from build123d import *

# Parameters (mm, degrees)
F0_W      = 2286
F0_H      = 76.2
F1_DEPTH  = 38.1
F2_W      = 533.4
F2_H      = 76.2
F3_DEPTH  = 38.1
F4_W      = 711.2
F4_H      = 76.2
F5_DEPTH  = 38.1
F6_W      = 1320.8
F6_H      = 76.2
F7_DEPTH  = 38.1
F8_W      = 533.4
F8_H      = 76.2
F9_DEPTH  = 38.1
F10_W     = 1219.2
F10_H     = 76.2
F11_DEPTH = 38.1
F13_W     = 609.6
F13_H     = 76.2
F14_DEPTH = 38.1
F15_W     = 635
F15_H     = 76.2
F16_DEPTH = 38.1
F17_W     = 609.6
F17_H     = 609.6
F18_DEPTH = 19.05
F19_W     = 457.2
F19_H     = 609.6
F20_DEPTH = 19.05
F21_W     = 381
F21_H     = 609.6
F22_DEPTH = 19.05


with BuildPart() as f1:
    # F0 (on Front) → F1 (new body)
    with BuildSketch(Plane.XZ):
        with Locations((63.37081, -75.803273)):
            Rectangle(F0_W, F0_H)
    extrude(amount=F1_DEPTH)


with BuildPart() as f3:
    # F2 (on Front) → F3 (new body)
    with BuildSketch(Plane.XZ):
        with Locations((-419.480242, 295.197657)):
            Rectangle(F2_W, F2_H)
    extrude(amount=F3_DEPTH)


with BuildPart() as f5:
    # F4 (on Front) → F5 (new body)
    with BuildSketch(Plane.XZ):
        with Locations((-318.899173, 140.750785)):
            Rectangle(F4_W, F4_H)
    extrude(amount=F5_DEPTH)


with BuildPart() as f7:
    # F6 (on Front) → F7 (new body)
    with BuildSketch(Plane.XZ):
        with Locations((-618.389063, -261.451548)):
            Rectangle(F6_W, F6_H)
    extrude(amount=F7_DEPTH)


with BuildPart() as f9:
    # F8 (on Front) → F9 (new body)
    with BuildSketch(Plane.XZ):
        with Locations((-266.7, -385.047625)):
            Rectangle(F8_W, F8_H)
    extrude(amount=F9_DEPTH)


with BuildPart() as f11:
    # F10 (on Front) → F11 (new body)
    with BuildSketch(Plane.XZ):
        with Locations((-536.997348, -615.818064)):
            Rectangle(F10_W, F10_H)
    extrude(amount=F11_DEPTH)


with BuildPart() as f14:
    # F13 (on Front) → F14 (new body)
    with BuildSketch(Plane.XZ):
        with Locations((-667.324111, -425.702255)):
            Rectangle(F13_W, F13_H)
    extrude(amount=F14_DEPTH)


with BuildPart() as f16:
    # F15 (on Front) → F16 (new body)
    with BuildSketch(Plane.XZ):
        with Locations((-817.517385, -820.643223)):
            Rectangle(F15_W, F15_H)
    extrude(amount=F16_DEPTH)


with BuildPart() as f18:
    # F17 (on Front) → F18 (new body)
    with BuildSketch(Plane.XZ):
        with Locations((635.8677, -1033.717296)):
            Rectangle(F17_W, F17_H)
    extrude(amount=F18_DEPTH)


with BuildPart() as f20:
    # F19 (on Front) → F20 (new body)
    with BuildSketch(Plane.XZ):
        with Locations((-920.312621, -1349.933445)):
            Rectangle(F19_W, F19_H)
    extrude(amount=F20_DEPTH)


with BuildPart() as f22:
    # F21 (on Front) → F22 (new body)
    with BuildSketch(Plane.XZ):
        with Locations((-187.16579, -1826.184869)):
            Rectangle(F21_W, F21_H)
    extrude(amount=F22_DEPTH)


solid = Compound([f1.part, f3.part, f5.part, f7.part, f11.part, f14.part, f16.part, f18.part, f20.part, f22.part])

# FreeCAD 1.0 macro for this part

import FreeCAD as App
import Part
import Sketcher
Q = App.Units.Quantity

doc = App.newDocument("Part")
body = doc.addObject("PartDesign::Body", "Body")

# Sketch on XZ plane
sketch1 = doc.addObject("Sketcher::SketchObject", "Sketch")
body.addObject(sketch1)
sketch1.AttachmentSupport = (doc.XZ_Plane, [""])
sketch1.MapMode = "FlatFace"
sketch1.addGeometry([
    Part.LineSegment(App.Vector(-1080, -38, 0), App.Vector(-1080, -114, 0)),
    Part.LineSegment(App.Vector(-1080, -114, 0), App.Vector(1206, -114, 0)),
    Part.LineSegment(App.Vector(1206, -114, 0), App.Vector(1206, -38, 0)),
    Part.LineSegment(App.Vector(1206, -38, 0), App.Vector(-1080, -38, 0)),
], False)
sketch1.addConstraint([
    Sketcher.Constraint("Coincident", 0, 2, 1, 1),
    Sketcher.Constraint("Coincident", 1, 2, 2, 1),
    Sketcher.Constraint("Coincident", 2, 2, 3, 1),
    Sketcher.Constraint("Coincident", 3, 2, 0, 1),
    Sketcher.Constraint("Vertical", 0),
    Sketcher.Constraint("Horizontal", 1),
    Sketcher.Constraint("Vertical", 2),
    Sketcher.Constraint("Horizontal", 3),
    Sketcher.Constraint("DistanceX", 1, 1, 1, 2, Q("90 in")),
    Sketcher.Constraint("DistanceY", 0, 2, 0, 1, Q("3 in")),
    Sketcher.Constraint("DistanceX", 0, 2, -1, 1, 1079.62919),
    Sketcher.Constraint("DistanceY", 0, 2, -1, 1, 113.903273),
])
pad1 = doc.addObject("PartDesign::Pad", "Pad")
body.addObject(pad1)
pad1.Profile = sketch1
pad1.Length = Q("1.5 in")
body2 = doc.addObject("PartDesign::Body", "Body001")

# Sketch on XZ plane
sketch2 = doc.addObject("Sketcher::SketchObject", "Sketch001")
body2.addObject(sketch2)
sketch2.AttachmentSupport = (doc.getObject("XZ_Plane001"), [""])
sketch2.MapMode = "FlatFace"
sketch2.addGeometry([
    Part.LineSegment(App.Vector(-686, 333, 0), App.Vector(-686, 257, 0)),
    Part.LineSegment(App.Vector(-686, 257, 0), App.Vector(-153, 257, 0)),
    Part.LineSegment(App.Vector(-153, 257, 0), App.Vector(-153, 333, 0)),
    Part.LineSegment(App.Vector(-153, 333, 0), App.Vector(-686, 333, 0)),
], False)
sketch2.addConstraint([
    Sketcher.Constraint("Coincident", 0, 2, 1, 1),
    Sketcher.Constraint("Coincident", 1, 2, 2, 1),
    Sketcher.Constraint("Coincident", 2, 2, 3, 1),
    Sketcher.Constraint("Coincident", 3, 2, 0, 1),
    Sketcher.Constraint("Vertical", 0),
    Sketcher.Constraint("Horizontal", 1),
    Sketcher.Constraint("Vertical", 2),
    Sketcher.Constraint("Horizontal", 3),
    Sketcher.Constraint("DistanceX", 1, 1, 1, 2, Q("21 in")),
    Sketcher.Constraint("DistanceY", 0, 2, 0, 1, Q("3 in")),
    Sketcher.Constraint("DistanceX", 0, 2, -1, 1, 686.180242),
    Sketcher.Constraint("DistanceY", -1, 1, 0, 2, 257.097657),
])
pad2 = doc.addObject("PartDesign::Pad", "Pad001")
body2.addObject(pad2)
pad2.Profile = sketch2
pad2.Length = Q("1.5 in")
body3 = doc.addObject("PartDesign::Body", "Body002")

# Sketch on XZ plane
sketch3 = doc.addObject("Sketcher::SketchObject", "Sketch002")
body3.addObject(sketch3)
sketch3.AttachmentSupport = (doc.getObject("XZ_Plane002"), [""])
sketch3.MapMode = "FlatFace"
sketch3.addGeometry([
    Part.LineSegment(App.Vector(-674, 179, 0), App.Vector(-674, 103, 0)),
    Part.LineSegment(App.Vector(-674, 103, 0), App.Vector(37, 103, 0)),
    Part.LineSegment(App.Vector(37, 103, 0), App.Vector(37, 179, 0)),
    Part.LineSegment(App.Vector(37, 179, 0), App.Vector(-674, 179, 0)),
], False)
sketch3.addConstraint([
    Sketcher.Constraint("Coincident", 0, 2, 1, 1),
    Sketcher.Constraint("Coincident", 1, 2, 2, 1),
    Sketcher.Constraint("Coincident", 2, 2, 3, 1),
    Sketcher.Constraint("Coincident", 3, 2, 0, 1),
    Sketcher.Constraint("Vertical", 0),
    Sketcher.Constraint("Horizontal", 1),
    Sketcher.Constraint("Vertical", 2),
    Sketcher.Constraint("Horizontal", 3),
    Sketcher.Constraint("DistanceX", 1, 1, 1, 2, Q("28 in")),
    Sketcher.Constraint("DistanceY", 0, 2, 0, 1, Q("3 in")),
    Sketcher.Constraint("DistanceX", 0, 2, -1, 1, 674.499173),
    Sketcher.Constraint("DistanceY", -1, 1, 0, 2, 102.650785),
])
pad3 = doc.addObject("PartDesign::Pad", "Pad002")
body3.addObject(pad3)
pad3.Profile = sketch3
pad3.Length = Q("1.5 in")
body4 = doc.addObject("PartDesign::Body", "Body003")

# Sketch on XZ plane
sketch4 = doc.addObject("Sketcher::SketchObject", "Sketch003")
body4.addObject(sketch4)
sketch4.AttachmentSupport = (doc.getObject("XZ_Plane003"), [""])
sketch4.MapMode = "FlatFace"
sketch4.addGeometry([
    Part.LineSegment(App.Vector(-1279, -223, 0), App.Vector(-1279, -300, 0)),
    Part.LineSegment(App.Vector(-1279, -300, 0), App.Vector(42, -300, 0)),
    Part.LineSegment(App.Vector(42, -300, 0), App.Vector(42, -223, 0)),
    Part.LineSegment(App.Vector(42, -223, 0), App.Vector(-1279, -223, 0)),
], False)
sketch4.addConstraint([
    Sketcher.Constraint("Coincident", 0, 2, 1, 1),
    Sketcher.Constraint("Coincident", 1, 2, 2, 1),
    Sketcher.Constraint("Coincident", 2, 2, 3, 1),
    Sketcher.Constraint("Coincident", 3, 2, 0, 1),
    Sketcher.Constraint("Vertical", 0),
    Sketcher.Constraint("Horizontal", 1),
    Sketcher.Constraint("Vertical", 2),
    Sketcher.Constraint("Horizontal", 3),
    Sketcher.Constraint("DistanceX", 1, 1, 1, 2, Q("52 in")),
    Sketcher.Constraint("DistanceY", 0, 2, 0, 1, Q("3 in")),
    Sketcher.Constraint("DistanceY", 0, 2, -1, 1, 299.551548),
    Sketcher.Constraint("DistanceX", 0, 2, -1, 1, 1278.789063),
])
pad4 = doc.addObject("PartDesign::Pad", "Pad003")
body4.addObject(pad4)
pad4.Profile = sketch4
pad4.Length = Q("1.5 in")
body5 = doc.addObject("PartDesign::Body", "Body004")

# Sketch on XZ plane
sketch5 = doc.addObject("Sketcher::SketchObject", "Sketch004")
body5.addObject(sketch5)
sketch5.AttachmentSupport = (doc.getObject("XZ_Plane004"), [""])
sketch5.MapMode = "FlatFace"
sketch5.addGeometry([
    Part.LineSegment(App.Vector(-533, -347, 0), App.Vector(-533, -423, 0)),
    Part.LineSegment(App.Vector(-533, -423, 0), App.Vector(0, -423, 0)),
    Part.LineSegment(App.Vector(0, -423, 0), App.Vector(0, -347, 0)),
    Part.LineSegment(App.Vector(0, -347, 0), App.Vector(-533, -347, 0)),
], False)
sketch5.addConstraint([
    Sketcher.Constraint("Coincident", 0, 2, 1, 1),
    Sketcher.Constraint("Coincident", 1, 2, 2, 1),
    Sketcher.Constraint("Coincident", 2, 2, 3, 1),
    Sketcher.Constraint("Coincident", 3, 2, 0, 1),
    Sketcher.Constraint("Vertical", 0),
    Sketcher.Constraint("Horizontal", 1),
    Sketcher.Constraint("Vertical", 2),
    Sketcher.Constraint("Horizontal", 3),
    Sketcher.Constraint("PointOnObject", 1, 2, -2),
    Sketcher.Constraint("DistanceX", 1, 1, 1, 2, Q("21 in")),
    Sketcher.Constraint("DistanceY", 0, 2, 0, 1, Q("3 in")),
    Sketcher.Constraint("DistanceY", 0, 2, -1, 1, 423.147625),
])
pad5 = doc.addObject("PartDesign::Pad", "Pad004")
body5.addObject(pad5)
pad5.Profile = sketch5
pad5.Length = Q("1.5 in")
body6 = doc.addObject("PartDesign::Body", "Body005")

# Sketch on XZ plane
sketch6 = doc.addObject("Sketcher::SketchObject", "Sketch005")
body6.addObject(sketch6)
sketch6.AttachmentSupport = (doc.getObject("XZ_Plane005"), [""])
sketch6.MapMode = "FlatFace"
sketch6.addGeometry([
    Part.LineSegment(App.Vector(-1147, -578, 0), App.Vector(-1147, -654, 0)),
    Part.LineSegment(App.Vector(-1147, -654, 0), App.Vector(73, -654, 0)),
    Part.LineSegment(App.Vector(73, -654, 0), App.Vector(73, -578, 0)),
    Part.LineSegment(App.Vector(73, -578, 0), App.Vector(-1147, -578, 0)),
], False)
sketch6.addConstraint([
    Sketcher.Constraint("Coincident", 0, 2, 1, 1),
    Sketcher.Constraint("Coincident", 1, 2, 2, 1),
    Sketcher.Constraint("Coincident", 2, 2, 3, 1),
    Sketcher.Constraint("Coincident", 3, 2, 0, 1),
    Sketcher.Constraint("Vertical", 0),
    Sketcher.Constraint("Horizontal", 1),
    Sketcher.Constraint("Vertical", 2),
    Sketcher.Constraint("Horizontal", 3),
    Sketcher.Constraint("DistanceX", 1, 1, 1, 2, Q("48 in")),
    Sketcher.Constraint("DistanceY", 0, 2, 0, 1, Q("3 in")),
    Sketcher.Constraint("DistanceX", 0, 2, -1, 1, 1146.597348),
    Sketcher.Constraint("DistanceY", 0, 2, -1, 1, 653.918064),
])
pad6 = doc.addObject("PartDesign::Pad", "Pad005")
body6.addObject(pad6)
pad6.Profile = sketch6
pad6.Length = Q("1.5 in")
body7 = doc.addObject("PartDesign::Body", "Body006")

# Sketch on XZ plane
sketch7 = doc.addObject("Sketcher::SketchObject", "Sketch006")
body7.addObject(sketch7)
sketch7.AttachmentSupport = (doc.getObject("XZ_Plane006"), [""])
sketch7.MapMode = "FlatFace"
sketch7.addGeometry([
    Part.LineSegment(App.Vector(-972, -388, 0), App.Vector(-972, -464, 0)),
    Part.LineSegment(App.Vector(-972, -464, 0), App.Vector(-363, -464, 0)),
    Part.LineSegment(App.Vector(-363, -464, 0), App.Vector(-363, -388, 0)),
    Part.LineSegment(App.Vector(-363, -388, 0), App.Vector(-972, -388, 0)),
], False)
sketch7.addConstraint([
    Sketcher.Constraint("Coincident", 0, 2, 1, 1),
    Sketcher.Constraint("Coincident", 1, 2, 2, 1),
    Sketcher.Constraint("Coincident", 2, 2, 3, 1),
    Sketcher.Constraint("Coincident", 3, 2, 0, 1),
    Sketcher.Constraint("Vertical", 0),
    Sketcher.Constraint("Horizontal", 1),
    Sketcher.Constraint("Vertical", 2),
    Sketcher.Constraint("Horizontal", 3),
    Sketcher.Constraint("DistanceX", 1, 1, 1, 2, Q("24 in")),
    Sketcher.Constraint("DistanceY", 0, 2, 0, 1, Q("3 in")),
    Sketcher.Constraint("DistanceX", 0, 2, -1, 1, 972.124111),
    Sketcher.Constraint("DistanceY", 0, 2, -1, 1, 463.802255),
])
pad7 = doc.addObject("PartDesign::Pad", "Pad006")
body7.addObject(pad7)
pad7.Profile = sketch7
pad7.Length = Q("1.5 in")
body8 = doc.addObject("PartDesign::Body", "Body007")

# Sketch on XZ plane
sketch8 = doc.addObject("Sketcher::SketchObject", "Sketch007")
body8.addObject(sketch8)
sketch8.AttachmentSupport = (doc.getObject("XZ_Plane007"), [""])
sketch8.MapMode = "FlatFace"
sketch8.addGeometry([
    Part.LineSegment(App.Vector(-1135, -783, 0), App.Vector(-1135, -859, 0)),
    Part.LineSegment(App.Vector(-1135, -859, 0), App.Vector(-500, -859, 0)),
    Part.LineSegment(App.Vector(-500, -859, 0), App.Vector(-500, -783, 0)),
    Part.LineSegment(App.Vector(-500, -783, 0), App.Vector(-1135, -783, 0)),
], False)
sketch8.addConstraint([
    Sketcher.Constraint("Coincident", 0, 2, 1, 1),
    Sketcher.Constraint("Coincident", 1, 2, 2, 1),
    Sketcher.Constraint("Coincident", 2, 2, 3, 1),
    Sketcher.Constraint("Coincident", 3, 2, 0, 1),
    Sketcher.Constraint("Vertical", 0),
    Sketcher.Constraint("Horizontal", 1),
    Sketcher.Constraint("Vertical", 2),
    Sketcher.Constraint("Horizontal", 3),
    Sketcher.Constraint("DistanceX", 1, 1, 1, 2, Q("25 in")),
    Sketcher.Constraint("DistanceY", 0, 2, 0, 1, Q("3 in")),
    Sketcher.Constraint("DistanceX", 0, 2, -1, 1, 1135.017385),
    Sketcher.Constraint("DistanceY", 0, 2, -1, 1, 858.743223),
])
pad8 = doc.addObject("PartDesign::Pad", "Pad007")
body8.addObject(pad8)
pad8.Profile = sketch8
pad8.Length = Q("1.5 in")
body9 = doc.addObject("PartDesign::Body", "Body008")

# Sketch on XZ plane
sketch9 = doc.addObject("Sketcher::SketchObject", "Sketch008")
body9.addObject(sketch9)
sketch9.AttachmentSupport = (doc.getObject("XZ_Plane008"), [""])
sketch9.MapMode = "FlatFace"
sketch9.addGeometry([
    Part.LineSegment(App.Vector(331, -729, 0), App.Vector(331, -1339, 0)),
    Part.LineSegment(App.Vector(331, -1339, 0), App.Vector(941, -1339, 0)),
    Part.LineSegment(App.Vector(941, -1339, 0), App.Vector(941, -729, 0)),
    Part.LineSegment(App.Vector(941, -729, 0), App.Vector(331, -729, 0)),
], False)
sketch9.addConstraint([
    Sketcher.Constraint("Coincident", 0, 2, 1, 1),
    Sketcher.Constraint("Coincident", 1, 2, 2, 1),
    Sketcher.Constraint("Coincident", 2, 2, 3, 1),
    Sketcher.Constraint("Coincident", 3, 2, 0, 1),
    Sketcher.Constraint("Vertical", 0),
    Sketcher.Constraint("Horizontal", 1),
    Sketcher.Constraint("Vertical", 2),
    Sketcher.Constraint("Horizontal", 3),
    Sketcher.Constraint("Equal", 3, 0),
    Sketcher.Constraint("DistanceX", 1, 1, 1, 2, Q("24 in")),
    Sketcher.Constraint("DistanceX", -1, 1, 0, 2, 331.0677),
    Sketcher.Constraint("DistanceY", 0, 2, -1, 1, 1338.517296),
])
pad9 = doc.addObject("PartDesign::Pad", "Pad008")
body9.addObject(pad9)
pad9.Profile = sketch9
pad9.Length = Q("0.75 in")
body10 = doc.addObject("PartDesign::Body", "Body009")

# Sketch on XZ plane
sketch10 = doc.addObject("Sketcher::SketchObject", "Sketch009")
body10.addObject(sketch10)
sketch10.AttachmentSupport = (doc.getObject("XZ_Plane009"), [""])
sketch10.MapMode = "FlatFace"
sketch10.addGeometry([
    Part.LineSegment(App.Vector(-1149, -1045, 0), App.Vector(-1149, -1655, 0)),
    Part.LineSegment(App.Vector(-1149, -1655, 0), App.Vector(-692, -1655, 0)),
    Part.LineSegment(App.Vector(-692, -1655, 0), App.Vector(-692, -1045, 0)),
    Part.LineSegment(App.Vector(-692, -1045, 0), App.Vector(-1149, -1045, 0)),
], False)
sketch10.addConstraint([
    Sketcher.Constraint("Coincident", 0, 2, 1, 1),
    Sketcher.Constraint("Coincident", 1, 2, 2, 1),
    Sketcher.Constraint("Coincident", 2, 2, 3, 1),
    Sketcher.Constraint("Coincident", 3, 2, 0, 1),
    Sketcher.Constraint("Vertical", 0),
    Sketcher.Constraint("Horizontal", 1),
    Sketcher.Constraint("Vertical", 2),
    Sketcher.Constraint("Horizontal", 3),
    Sketcher.Constraint("DistanceX", 1, 1, 1, 2, Q("18 in")),
    Sketcher.Constraint("DistanceY", 0, 2, 0, 1, Q("24 in")),
    Sketcher.Constraint("DistanceX", 0, 2, -1, 1, 1148.912621),
    Sketcher.Constraint("DistanceY", 0, 2, -1, 1, 1654.733445),
])
pad10 = doc.addObject("PartDesign::Pad", "Pad009")
body10.addObject(pad10)
pad10.Profile = sketch10
pad10.Length = Q("0.75 in")
body11 = doc.addObject("PartDesign::Body", "Body010")

# Sketch on XZ plane
sketch11 = doc.addObject("Sketcher::SketchObject", "Sketch010")
body11.addObject(sketch11)
sketch11.AttachmentSupport = (doc.getObject("XZ_Plane010"), [""])
sketch11.MapMode = "FlatFace"
sketch11.addGeometry([
    Part.LineSegment(App.Vector(-378, -1521, 0), App.Vector(-378, -2131, 0)),
    Part.LineSegment(App.Vector(-378, -2131, 0), App.Vector(3, -2131, 0)),
    Part.LineSegment(App.Vector(3, -2131, 0), App.Vector(3, -1521, 0)),
    Part.LineSegment(App.Vector(3, -1521, 0), App.Vector(-378, -1521, 0)),
], False)
sketch11.addConstraint([
    Sketcher.Constraint("Coincident", 0, 2, 1, 1),
    Sketcher.Constraint("Coincident", 1, 2, 2, 1),
    Sketcher.Constraint("Coincident", 2, 2, 3, 1),
    Sketcher.Constraint("Coincident", 3, 2, 0, 1),
    Sketcher.Constraint("Vertical", 0),
    Sketcher.Constraint("Horizontal", 1),
    Sketcher.Constraint("Vertical", 2),
    Sketcher.Constraint("Horizontal", 3),
    Sketcher.Constraint("DistanceX", 1, 1, 1, 2, Q("15 in")),
    Sketcher.Constraint("DistanceY", 0, 2, 0, 1, Q("24 in")),
    Sketcher.Constraint("DistanceX", 0, 2, -1, 1, 377.66579),
    Sketcher.Constraint("DistanceY", 0, 2, -1, 1, 2130.984869),
])
pad11 = doc.addObject("PartDesign::Pad", "Pad010")
body11.addObject(pad11)
pad11.Profile = sketch11
pad11.Length = Q("0.75 in")
body5.Visibility = False

doc.recompute()
